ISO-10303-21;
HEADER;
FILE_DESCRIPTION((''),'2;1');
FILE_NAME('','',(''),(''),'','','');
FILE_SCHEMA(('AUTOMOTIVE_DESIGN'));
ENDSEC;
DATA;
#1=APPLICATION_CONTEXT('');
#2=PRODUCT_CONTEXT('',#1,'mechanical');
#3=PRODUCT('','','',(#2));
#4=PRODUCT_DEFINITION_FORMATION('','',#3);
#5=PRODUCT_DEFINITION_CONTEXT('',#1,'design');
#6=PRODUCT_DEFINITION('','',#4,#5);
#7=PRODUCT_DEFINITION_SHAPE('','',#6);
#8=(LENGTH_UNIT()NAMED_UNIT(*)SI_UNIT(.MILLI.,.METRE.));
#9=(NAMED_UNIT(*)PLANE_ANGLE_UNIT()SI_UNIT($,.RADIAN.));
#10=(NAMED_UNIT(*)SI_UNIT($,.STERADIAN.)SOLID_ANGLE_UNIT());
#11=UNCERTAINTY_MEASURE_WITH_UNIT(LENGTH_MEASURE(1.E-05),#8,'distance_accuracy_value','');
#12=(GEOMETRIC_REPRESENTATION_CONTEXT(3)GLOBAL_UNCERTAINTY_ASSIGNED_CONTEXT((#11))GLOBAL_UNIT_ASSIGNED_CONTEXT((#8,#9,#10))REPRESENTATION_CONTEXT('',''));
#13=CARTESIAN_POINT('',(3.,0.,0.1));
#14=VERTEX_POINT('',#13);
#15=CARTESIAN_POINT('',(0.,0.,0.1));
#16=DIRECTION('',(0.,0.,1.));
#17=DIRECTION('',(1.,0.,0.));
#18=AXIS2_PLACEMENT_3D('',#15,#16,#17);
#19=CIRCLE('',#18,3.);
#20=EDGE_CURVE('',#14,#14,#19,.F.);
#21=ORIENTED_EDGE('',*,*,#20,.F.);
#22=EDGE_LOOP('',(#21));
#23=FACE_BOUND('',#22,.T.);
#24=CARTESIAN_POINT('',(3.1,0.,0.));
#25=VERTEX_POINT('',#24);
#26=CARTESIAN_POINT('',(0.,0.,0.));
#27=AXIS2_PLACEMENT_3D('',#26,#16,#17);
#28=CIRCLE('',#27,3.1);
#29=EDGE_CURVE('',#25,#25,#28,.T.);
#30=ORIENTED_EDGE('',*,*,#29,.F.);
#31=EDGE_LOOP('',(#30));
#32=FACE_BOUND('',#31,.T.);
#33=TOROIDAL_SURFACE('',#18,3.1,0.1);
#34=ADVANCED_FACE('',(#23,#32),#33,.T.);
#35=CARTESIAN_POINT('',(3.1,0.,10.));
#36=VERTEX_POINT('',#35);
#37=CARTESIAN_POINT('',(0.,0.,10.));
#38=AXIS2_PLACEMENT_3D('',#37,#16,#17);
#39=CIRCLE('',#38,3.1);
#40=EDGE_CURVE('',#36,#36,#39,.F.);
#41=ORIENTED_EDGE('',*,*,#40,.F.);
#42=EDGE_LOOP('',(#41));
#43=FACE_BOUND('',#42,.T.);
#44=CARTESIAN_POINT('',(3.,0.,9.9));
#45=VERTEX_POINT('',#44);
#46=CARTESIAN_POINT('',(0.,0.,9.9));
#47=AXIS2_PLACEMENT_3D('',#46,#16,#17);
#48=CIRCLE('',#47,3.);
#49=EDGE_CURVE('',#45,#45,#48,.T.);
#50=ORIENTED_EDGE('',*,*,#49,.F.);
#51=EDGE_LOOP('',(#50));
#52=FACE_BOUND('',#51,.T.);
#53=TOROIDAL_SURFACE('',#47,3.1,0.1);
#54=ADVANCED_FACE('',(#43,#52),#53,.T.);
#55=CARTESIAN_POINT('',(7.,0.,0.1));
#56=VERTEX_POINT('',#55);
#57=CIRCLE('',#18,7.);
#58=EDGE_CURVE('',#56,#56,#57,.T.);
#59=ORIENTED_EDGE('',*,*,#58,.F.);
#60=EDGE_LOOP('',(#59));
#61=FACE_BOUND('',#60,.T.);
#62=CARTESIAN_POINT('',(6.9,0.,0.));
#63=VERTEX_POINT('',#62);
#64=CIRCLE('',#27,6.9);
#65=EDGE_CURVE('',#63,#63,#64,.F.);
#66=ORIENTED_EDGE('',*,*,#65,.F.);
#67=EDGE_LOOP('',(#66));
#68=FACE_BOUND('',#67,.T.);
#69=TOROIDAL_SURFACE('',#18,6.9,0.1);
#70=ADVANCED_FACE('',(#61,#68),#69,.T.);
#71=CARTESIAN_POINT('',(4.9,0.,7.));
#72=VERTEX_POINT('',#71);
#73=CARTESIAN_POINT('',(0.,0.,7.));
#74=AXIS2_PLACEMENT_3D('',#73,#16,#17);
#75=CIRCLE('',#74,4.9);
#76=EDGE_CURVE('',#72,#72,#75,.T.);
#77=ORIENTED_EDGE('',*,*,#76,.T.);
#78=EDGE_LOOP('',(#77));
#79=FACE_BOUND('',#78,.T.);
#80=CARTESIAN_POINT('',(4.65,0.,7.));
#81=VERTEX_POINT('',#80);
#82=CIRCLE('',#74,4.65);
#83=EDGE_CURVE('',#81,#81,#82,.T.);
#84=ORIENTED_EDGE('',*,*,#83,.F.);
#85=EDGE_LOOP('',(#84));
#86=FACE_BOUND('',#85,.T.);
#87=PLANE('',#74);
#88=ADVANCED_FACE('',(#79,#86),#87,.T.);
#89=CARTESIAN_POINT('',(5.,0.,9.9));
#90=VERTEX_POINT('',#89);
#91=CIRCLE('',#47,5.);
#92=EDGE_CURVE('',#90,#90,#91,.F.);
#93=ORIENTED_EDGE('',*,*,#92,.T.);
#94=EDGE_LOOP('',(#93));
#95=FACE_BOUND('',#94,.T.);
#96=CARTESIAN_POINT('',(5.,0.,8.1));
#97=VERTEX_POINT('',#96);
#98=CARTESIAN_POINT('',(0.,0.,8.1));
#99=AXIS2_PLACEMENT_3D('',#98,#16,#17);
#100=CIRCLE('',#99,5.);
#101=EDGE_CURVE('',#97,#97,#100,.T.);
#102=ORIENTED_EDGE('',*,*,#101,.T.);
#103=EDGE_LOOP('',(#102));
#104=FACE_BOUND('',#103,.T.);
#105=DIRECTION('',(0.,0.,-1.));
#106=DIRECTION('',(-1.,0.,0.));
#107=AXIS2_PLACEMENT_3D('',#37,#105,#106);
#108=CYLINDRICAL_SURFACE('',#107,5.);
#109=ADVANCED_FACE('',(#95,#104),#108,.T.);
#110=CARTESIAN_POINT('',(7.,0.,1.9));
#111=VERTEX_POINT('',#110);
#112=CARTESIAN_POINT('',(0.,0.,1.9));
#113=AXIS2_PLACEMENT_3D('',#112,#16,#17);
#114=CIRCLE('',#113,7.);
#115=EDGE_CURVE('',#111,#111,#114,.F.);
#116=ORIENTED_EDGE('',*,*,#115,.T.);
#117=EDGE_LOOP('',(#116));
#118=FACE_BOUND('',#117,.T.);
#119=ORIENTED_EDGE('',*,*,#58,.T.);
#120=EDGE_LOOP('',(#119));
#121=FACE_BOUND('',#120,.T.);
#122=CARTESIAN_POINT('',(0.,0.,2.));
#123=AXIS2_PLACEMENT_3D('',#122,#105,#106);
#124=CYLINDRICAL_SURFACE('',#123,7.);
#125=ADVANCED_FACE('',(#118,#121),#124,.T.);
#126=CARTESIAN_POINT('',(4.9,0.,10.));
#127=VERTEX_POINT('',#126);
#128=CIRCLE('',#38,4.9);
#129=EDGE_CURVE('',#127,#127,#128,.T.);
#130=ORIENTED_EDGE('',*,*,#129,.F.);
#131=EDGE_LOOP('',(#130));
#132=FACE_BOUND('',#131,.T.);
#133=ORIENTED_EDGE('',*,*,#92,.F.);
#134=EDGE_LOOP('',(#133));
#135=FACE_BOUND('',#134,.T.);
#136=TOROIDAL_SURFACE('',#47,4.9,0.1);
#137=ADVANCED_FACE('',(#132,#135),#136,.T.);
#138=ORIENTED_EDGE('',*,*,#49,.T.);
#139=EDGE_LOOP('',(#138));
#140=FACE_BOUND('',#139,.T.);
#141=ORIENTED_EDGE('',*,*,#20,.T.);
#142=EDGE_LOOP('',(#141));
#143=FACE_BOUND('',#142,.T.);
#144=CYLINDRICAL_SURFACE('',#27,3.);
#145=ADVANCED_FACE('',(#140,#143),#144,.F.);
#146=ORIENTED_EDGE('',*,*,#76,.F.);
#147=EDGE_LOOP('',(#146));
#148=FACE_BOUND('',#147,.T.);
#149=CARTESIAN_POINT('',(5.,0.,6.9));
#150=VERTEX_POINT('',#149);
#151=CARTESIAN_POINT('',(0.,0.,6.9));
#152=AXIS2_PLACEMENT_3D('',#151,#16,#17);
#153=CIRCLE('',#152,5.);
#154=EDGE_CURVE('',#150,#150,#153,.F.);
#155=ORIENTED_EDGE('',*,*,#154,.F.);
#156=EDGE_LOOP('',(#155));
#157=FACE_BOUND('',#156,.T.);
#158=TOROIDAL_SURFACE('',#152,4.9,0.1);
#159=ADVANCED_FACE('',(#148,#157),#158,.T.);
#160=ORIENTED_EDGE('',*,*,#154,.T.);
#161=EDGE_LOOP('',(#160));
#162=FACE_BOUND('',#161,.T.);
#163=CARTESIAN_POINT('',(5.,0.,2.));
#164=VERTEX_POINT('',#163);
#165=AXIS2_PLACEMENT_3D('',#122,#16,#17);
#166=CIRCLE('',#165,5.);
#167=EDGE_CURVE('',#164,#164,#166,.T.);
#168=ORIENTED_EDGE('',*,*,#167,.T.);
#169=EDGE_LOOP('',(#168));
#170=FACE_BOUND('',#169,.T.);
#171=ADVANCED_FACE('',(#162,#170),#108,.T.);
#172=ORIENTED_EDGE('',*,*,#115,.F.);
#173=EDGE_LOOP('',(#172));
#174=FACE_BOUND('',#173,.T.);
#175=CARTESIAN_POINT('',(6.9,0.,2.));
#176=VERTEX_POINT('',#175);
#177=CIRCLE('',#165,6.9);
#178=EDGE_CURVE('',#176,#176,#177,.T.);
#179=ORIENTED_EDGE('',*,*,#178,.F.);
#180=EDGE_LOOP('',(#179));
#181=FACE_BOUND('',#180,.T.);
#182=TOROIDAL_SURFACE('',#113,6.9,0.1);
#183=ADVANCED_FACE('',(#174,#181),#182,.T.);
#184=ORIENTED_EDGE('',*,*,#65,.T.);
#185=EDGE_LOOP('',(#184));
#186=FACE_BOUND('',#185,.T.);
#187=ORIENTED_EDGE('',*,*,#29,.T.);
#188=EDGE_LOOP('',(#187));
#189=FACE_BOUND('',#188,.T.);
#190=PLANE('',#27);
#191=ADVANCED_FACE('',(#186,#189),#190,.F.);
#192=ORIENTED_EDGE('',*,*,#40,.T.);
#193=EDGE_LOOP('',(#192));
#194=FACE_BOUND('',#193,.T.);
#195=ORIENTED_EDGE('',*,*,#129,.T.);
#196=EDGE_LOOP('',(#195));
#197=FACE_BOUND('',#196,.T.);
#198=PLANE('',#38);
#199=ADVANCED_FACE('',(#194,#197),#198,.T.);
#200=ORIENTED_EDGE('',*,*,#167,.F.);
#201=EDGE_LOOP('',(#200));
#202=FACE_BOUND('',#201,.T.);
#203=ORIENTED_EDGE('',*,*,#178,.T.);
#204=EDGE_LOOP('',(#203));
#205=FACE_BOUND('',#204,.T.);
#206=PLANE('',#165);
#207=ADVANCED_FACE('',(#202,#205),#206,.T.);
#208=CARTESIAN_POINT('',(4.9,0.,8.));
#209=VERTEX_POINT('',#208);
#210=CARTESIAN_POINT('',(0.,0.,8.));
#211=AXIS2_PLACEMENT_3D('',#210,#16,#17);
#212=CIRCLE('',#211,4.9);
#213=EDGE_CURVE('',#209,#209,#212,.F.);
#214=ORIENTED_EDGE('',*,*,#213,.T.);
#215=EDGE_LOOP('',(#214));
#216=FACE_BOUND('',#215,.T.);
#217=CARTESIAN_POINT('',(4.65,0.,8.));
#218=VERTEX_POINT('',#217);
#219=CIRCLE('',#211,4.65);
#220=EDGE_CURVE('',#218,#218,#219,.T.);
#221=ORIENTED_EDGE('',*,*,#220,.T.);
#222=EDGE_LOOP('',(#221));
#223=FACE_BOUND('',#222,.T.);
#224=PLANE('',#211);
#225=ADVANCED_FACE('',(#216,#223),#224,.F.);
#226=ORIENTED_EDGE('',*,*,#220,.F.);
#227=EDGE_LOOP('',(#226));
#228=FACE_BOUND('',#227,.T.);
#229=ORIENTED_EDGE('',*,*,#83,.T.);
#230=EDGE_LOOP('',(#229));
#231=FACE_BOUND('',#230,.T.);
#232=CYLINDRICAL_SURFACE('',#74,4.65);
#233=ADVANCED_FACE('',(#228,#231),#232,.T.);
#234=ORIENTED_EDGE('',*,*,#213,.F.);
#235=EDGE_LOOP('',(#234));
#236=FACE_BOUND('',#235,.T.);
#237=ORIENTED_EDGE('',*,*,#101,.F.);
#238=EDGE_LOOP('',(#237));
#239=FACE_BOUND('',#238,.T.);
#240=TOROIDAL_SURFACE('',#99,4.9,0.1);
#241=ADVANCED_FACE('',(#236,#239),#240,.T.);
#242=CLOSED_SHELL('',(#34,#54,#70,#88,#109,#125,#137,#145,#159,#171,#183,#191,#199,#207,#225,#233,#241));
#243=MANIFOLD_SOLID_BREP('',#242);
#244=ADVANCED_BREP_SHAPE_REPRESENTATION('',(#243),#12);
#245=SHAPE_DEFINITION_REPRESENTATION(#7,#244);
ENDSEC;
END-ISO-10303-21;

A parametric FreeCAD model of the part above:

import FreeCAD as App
import Part
import Sketcher

V = App.Vector


def edges_at(feature, points):
    """Names of the edges that pass closest to the given points."""
    edges = feature.Shape.Edges
    near = lambda p: min(range(len(edges)), key=lambda i: edges[i].distToShape(Part.Vertex(*p))[0])
    return sorted({f"Edge{near(p) + 1}" for p in points})

doc = App.newDocument("Part")
params = doc.addObject("Spreadsheet::Sheet", "Params")
for row, (alias, value) in enumerate([
    ("sketch1_diameter", "14 mm"),
    ("pad1_length", "2 mm"),
    ("sketch2_diameter", "10 mm"),
    ("pad2_length", "8 mm"),
    ("sketch3_diameter", "6 mm"),
    ("sketch4_diameter", "10 mm"),
    ("sketch4_diameter2", "9.3 mm"),
    ("pocket2_length", "1 mm"),
    ("fillet_radius", "0.1 mm"),
], start=1):
    params.set(f"A{row}", alias)
    params.set(f"B{row}", "=" + value)
    params.setAlias(f"B{row}", alias)

body = doc.addObject("PartDesign::Body", "Body")

# Sketch on XY plane
sketch1 = doc.addObject("Sketcher::SketchObject", "Sketch")
body.addObject(sketch1)
sketch1.AttachmentSupport = (doc.XY_Plane, [""])
sketch1.MapMode = "FlatFace"
sketch1.addGeometry(Part.Circle(V(0, 0, 0), V(0, 0, 1), 7), False)
sketch1.addConstraint([
    Sketcher.Constraint("Coincident", 0, 3, -1, 1),
    Sketcher.Constraint("Diameter", 0, 14.0),
])
sketch1.setExpression("Constraints[1]", "Params.sketch1_diameter")
pad1 = doc.addObject("PartDesign::Pad", "Pad")
body.addObject(pad1)
pad1.Profile = sketch1
pad1.setExpression("Length", "Params.pad1_length")

# Sketch on XY plane
sketch2 = doc.addObject("Sketcher::SketchObject", "Sketch001")
body.addObject(sketch2)
sketch2.AttachmentSupport = (doc.XY_Plane, [""])
sketch2.MapMode = "FlatFace"
sketch2.AttachmentOffset = App.Placement(V(0, 0, 2), App.Rotation())
sketch2.addGeometry(Part.Circle(V(0, 0, 0), V(0, 0, 1), 5), False)
sketch2.addConstraint([
    Sketcher.Constraint("Coincident", 0, 3, -1, 1),
    Sketcher.Constraint("Diameter", 0, 10.0),
])
sketch2.setExpression("Constraints[1]", "Params.sketch2_diameter")
pad2 = doc.addObject("PartDesign::Pad", "Pad001")
body.addObject(pad2)
pad2.Profile = sketch2
pad2.setExpression("Length", "Params.pad2_length")

# Sketch on XY plane
sketch3 = doc.addObject("Sketcher::SketchObject", "Sketch002")
body.addObject(sketch3)
sketch3.AttachmentSupport = (doc.XY_Plane, [""])
sketch3.MapMode = "FlatFace"
sketch3.AttachmentOffset = App.Placement(V(0, 0, 10), App.Rotation())
sketch3.addGeometry(Part.Circle(V(0, 0, 0), V(0, 0, 1), 3), False)
sketch3.addConstraint([
    Sketcher.Constraint("Coincident", 0, 3, -1, 1),
    Sketcher.Constraint("Diameter", 0, 6.0),
])
sketch3.setExpression("Constraints[1]", "Params.sketch3_diameter")
pocket1 = doc.addObject("PartDesign::Pocket", "Pocket")
body.addObject(pocket1)
pocket1.Profile = sketch3
pocket1.Type = "ThroughAll"

# Sketch on XY plane
sketch4 = doc.addObject("Sketcher::SketchObject", "Sketch003")
body.addObject(sketch4)
sketch4.AttachmentSupport = (doc.XY_Plane, [""])
sketch4.MapMode = "FlatFace"
sketch4.AttachmentOffset = App.Placement(V(0, 0, 7), App.Rotation())
sketch4.addGeometry([
    Part.Circle(V(0, 0, 0), V(0, 0, 1), 5),
    Part.Circle(V(0, 0, 0), V(0, 0, 1), 4.7),
], False)
sketch4.addConstraint([
    Sketcher.Constraint("Coincident", 0, 3, -1, 1),
    Sketcher.Constraint("Coincident", 1, 3, -1, 1),
    Sketcher.Constraint("Diameter", 0, 10.0),
    Sketcher.Constraint("Diameter", 1, 9.3),
])
sketch4.setExpression("Constraints[2]", "Params.sketch4_diameter")
sketch4.setExpression("Constraints[3]", "Params.sketch4_diameter2")
pocket2 = doc.addObject("PartDesign::Pocket", "Pocket001")
body.addObject(pocket2)
pocket2.Profile = sketch4
pocket2.setExpression("Length", "Params.pocket2_length")
pocket2.Reversed = True
doc.recompute()

fillet = doc.addObject("PartDesign::Fillet", "Fillet")
body.addObject(fillet)
fillet.Base = (pocket2, edges_at(pocket2, [
    (-3, 0, 0),
    (-3, 0, 10),
    (-5, 0, 7),
    (-5, 0, 8),
    (-7, 0, 0),
    (-7, 0, 2),
    (-5, 0, 10),
]))
fillet.setExpression("Radius", "Params.fillet_radius")

doc.recompute()
